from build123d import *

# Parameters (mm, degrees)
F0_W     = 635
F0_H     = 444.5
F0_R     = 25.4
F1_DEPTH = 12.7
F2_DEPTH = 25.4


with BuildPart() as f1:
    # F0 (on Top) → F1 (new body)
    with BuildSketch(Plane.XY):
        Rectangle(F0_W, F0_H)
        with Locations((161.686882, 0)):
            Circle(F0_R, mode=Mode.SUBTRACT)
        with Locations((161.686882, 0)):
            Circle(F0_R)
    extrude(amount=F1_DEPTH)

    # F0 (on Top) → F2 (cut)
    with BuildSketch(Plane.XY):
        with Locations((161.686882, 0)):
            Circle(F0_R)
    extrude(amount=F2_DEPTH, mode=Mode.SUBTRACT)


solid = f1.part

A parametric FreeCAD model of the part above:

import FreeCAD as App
import Part
import Sketcher

V = App.Vector
Q = App.Units.Quantity

doc = App.newDocument("Part")
body = doc.addObject("PartDesign::Body", "Body")

sketch1 = doc.addObject("Sketcher::SketchObject", "Sketch")
body.addObject(sketch1)
sketch1.AttachmentSupport = (doc.XY_Plane, [""])
sketch1.MapMode = "FlatFace"
sketch1.addGeometry(Part.LineSegment(V(-317.5, 222.25, 0), V(-317.5, -222.25, 0)), False)
sketch1.addGeometry(Part.LineSegment(V(-317.5, -222.25, 0), V(317.5, -222.25, 0)), False)
sketch1.addGeometry(Part.LineSegment(V(317.5, -222.25, 0), V(317.5, 222.25, 0)), False)
sketch1.addGeometry(Part.LineSegment(V(317.5, 222.25, 0), V(-317.5, 222.25, 0)), False)
sketch1.addConstraint(Sketcher.Constraint("Coincident", 0, 2, 1, 1))
sketch1.addConstraint(Sketcher.Constraint("Coincident", 1, 2, 2, 1))
sketch1.addConstraint(Sketcher.Constraint("Coincident", 2, 2, 3, 1))
sketch1.addConstraint(Sketcher.Constraint("Coincident", 3, 2, 0, 1))
sketch1.addConstraint(Sketcher.Constraint("Vertical", 0))
sketch1.addConstraint(Sketcher.Constraint("Horizontal", 1))
sketch1.addConstraint(Sketcher.Constraint("Vertical", 2))
sketch1.addConstraint(Sketcher.Constraint("Horizontal", 3))
sketch1.addConstraint(Sketcher.Constraint("Symmetric", 0, 2, 2, 2, -1, 1))
sketch1.addConstraint(Sketcher.Constraint("DistanceX", 1, 1, 1, 2, Q("25 in")))
sketch1.addConstraint(Sketcher.Constraint("DistanceY", 0, 2, 0, 1, Q("17.5 in")))
pad1 = doc.addObject("PartDesign::Pad", "Pad")
body.addObject(pad1)
pad1.Profile = sketch1
pad1.Length = Q("0.5 in")

sketch2 = doc.addObject("Sketcher::SketchObject", "Sketch001")
body.addObject(sketch2)
sketch2.AttachmentSupport = (doc.XY_Plane, [""])
sketch2.MapMode = "FlatFace"
sketch2.addGeometry(Part.Circle(V(161.686882, 0, 0), V(0, 0, 1), 25.4), False)
sketch2.addConstraint(Sketcher.Constraint("PointOnObject", 0, 3, -1))
sketch2.addConstraint(Sketcher.Constraint("Diameter", 0, Q("2 in")))
sketch2.addConstraint(Sketcher.Constraint("DistanceX", -1, 1, 0, 3, Q("161.686882 mm")))
pocket1 = doc.addObject("PartDesign::Pocket", "Pocket")
body.addObject(pocket1)
pocket1.Profile = sketch2
pocket1.Length = Q("1 in")
pocket1.Reversed = True

doc.recompute()
